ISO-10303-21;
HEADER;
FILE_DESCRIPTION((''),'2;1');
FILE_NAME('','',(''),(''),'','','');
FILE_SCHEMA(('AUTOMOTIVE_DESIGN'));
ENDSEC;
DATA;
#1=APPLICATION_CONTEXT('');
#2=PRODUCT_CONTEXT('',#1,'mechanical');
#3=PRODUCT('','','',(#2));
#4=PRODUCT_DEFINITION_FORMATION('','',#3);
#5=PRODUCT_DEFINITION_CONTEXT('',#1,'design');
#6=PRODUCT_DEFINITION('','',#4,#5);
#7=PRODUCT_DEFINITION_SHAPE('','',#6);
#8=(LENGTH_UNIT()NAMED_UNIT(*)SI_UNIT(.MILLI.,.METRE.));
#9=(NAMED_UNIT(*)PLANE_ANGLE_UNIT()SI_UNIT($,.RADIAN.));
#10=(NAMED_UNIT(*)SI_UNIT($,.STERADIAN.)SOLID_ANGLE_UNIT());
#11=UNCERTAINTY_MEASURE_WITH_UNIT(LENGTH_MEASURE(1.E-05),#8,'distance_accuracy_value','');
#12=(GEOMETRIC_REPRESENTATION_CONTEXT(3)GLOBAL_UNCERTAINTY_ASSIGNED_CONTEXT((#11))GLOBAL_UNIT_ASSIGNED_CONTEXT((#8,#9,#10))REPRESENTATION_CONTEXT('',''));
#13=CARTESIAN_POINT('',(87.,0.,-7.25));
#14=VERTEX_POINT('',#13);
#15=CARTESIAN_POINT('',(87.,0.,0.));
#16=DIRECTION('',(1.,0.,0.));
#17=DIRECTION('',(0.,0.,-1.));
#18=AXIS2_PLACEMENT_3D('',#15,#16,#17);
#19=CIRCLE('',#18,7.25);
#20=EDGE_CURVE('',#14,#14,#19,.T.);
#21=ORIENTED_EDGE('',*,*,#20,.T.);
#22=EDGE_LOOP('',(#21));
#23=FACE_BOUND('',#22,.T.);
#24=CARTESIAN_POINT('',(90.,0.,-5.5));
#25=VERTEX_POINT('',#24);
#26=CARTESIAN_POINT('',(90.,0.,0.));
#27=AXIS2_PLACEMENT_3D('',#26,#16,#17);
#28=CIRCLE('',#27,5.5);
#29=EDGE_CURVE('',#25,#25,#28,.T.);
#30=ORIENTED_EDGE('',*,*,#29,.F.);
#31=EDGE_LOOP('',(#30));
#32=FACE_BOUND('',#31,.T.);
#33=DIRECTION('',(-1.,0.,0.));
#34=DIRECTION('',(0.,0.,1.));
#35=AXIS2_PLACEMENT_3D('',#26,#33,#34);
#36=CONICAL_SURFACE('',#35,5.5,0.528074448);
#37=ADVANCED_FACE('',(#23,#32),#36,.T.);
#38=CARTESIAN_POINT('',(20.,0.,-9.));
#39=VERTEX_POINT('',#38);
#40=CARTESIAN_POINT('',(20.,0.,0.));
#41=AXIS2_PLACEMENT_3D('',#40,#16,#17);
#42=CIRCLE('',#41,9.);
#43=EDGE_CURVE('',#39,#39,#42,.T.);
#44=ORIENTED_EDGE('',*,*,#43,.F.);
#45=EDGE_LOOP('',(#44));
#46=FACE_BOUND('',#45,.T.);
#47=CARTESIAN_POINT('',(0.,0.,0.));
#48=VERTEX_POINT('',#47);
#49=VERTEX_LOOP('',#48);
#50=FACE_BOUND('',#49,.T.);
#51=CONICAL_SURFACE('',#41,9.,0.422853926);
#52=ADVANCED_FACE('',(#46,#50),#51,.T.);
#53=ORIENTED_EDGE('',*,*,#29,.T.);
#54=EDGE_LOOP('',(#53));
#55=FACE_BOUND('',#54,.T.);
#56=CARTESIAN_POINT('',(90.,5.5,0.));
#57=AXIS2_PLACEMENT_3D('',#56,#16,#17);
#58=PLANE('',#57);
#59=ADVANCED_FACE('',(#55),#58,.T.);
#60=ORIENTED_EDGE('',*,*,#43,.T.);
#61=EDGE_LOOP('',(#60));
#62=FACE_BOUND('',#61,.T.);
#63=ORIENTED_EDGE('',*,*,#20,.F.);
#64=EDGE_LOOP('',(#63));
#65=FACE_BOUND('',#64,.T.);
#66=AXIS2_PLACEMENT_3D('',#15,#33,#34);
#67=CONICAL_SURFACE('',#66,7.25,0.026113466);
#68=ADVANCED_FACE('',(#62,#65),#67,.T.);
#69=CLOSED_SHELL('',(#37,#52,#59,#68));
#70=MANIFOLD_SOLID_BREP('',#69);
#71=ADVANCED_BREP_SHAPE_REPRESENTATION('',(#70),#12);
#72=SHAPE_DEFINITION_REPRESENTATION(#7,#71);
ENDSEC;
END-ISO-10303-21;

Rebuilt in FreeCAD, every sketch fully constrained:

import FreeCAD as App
import Part
import Sketcher
from FreeCAD import Vector

doc = App.newDocument("Part")
params = doc.addObject("Spreadsheet::Sheet", "Params")
for row, (alias, value) in enumerate([
    ("sketch1_width", "90 mm"),
    ("sketch1_height", "5.5 mm"),
    ("revolution_angle", "360 deg"),
], start=1):
    params.set(f"A{row}", alias)
    params.set(f"B{row}", "=" + value)
    params.setAlias(f"B{row}", alias)

body = doc.addObject("PartDesign::Body", "Body")

sketch1 = body.newObject("Sketcher::SketchObject", "Sketch")
sketch1.AttachmentSupport = (doc.getObject("XY_Plane"), [""])
sketch1.MapMode = "FlatFace"
sketch1.addGeometry([
    Part.LineSegment(Vector(20, 9, 0), Vector(0, 0, 0)),
    Part.LineSegment(Vector(0, 0, 0), Vector(90, 0, 0)),
    Part.LineSegment(Vector(90, 0, 0), Vector(90, 5.5, 0)),
    Part.LineSegment(Vector(90, 5.5, 0), Vector(87, 7.25, 0)),
    Part.LineSegment(Vector(87, 7.25, 0), Vector(20, 9, 0)),
], False)
sketch1.addConstraint([
    Sketcher.Constraint("Coincident", 0, 2, 1, 1),
    Sketcher.Constraint("Coincident", 1, 2, 2, 1),
    Sketcher.Constraint("Coincident", 2, 2, 3, 1),
    Sketcher.Constraint("Coincident", 3, 2, 4, 1),
    Sketcher.Constraint("Coincident", 4, 2, 0, 1),
    Sketcher.Constraint("Horizontal", 1),
    Sketcher.Constraint("Vertical", 2),
    Sketcher.Constraint("Coincident", 0, 2, -1, 1),
    Sketcher.Constraint("DistanceX", 1, 1, 1, 2, 90.0),
    Sketcher.Constraint("DistanceY", 2, 1, 2, 2, 5.5),
    Sketcher.Constraint("DistanceX", -1, 1, 3, 2, 87.0),
    Sketcher.Constraint("DistanceX", -1, 1, 4, 2, 20.0),
    Sketcher.Constraint("DistanceY", -1, 1, 4, 2, 9.0),
    Sketcher.Constraint("DistanceY", -1, 1, 3, 2, 7.25),
])
sketch1.setExpression("Constraints[8]", "Params.sketch1_width")
sketch1.setExpression("Constraints[9]", "Params.sketch1_height")
revolution = body.newObject("PartDesign::Revolution", "Revolution")
revolution.Profile = sketch1
revolution.ReferenceAxis = (sketch1, ["H_Axis"])
revolution.setExpression("Angle", "Params.revolution_angle")

doc.recompute()
